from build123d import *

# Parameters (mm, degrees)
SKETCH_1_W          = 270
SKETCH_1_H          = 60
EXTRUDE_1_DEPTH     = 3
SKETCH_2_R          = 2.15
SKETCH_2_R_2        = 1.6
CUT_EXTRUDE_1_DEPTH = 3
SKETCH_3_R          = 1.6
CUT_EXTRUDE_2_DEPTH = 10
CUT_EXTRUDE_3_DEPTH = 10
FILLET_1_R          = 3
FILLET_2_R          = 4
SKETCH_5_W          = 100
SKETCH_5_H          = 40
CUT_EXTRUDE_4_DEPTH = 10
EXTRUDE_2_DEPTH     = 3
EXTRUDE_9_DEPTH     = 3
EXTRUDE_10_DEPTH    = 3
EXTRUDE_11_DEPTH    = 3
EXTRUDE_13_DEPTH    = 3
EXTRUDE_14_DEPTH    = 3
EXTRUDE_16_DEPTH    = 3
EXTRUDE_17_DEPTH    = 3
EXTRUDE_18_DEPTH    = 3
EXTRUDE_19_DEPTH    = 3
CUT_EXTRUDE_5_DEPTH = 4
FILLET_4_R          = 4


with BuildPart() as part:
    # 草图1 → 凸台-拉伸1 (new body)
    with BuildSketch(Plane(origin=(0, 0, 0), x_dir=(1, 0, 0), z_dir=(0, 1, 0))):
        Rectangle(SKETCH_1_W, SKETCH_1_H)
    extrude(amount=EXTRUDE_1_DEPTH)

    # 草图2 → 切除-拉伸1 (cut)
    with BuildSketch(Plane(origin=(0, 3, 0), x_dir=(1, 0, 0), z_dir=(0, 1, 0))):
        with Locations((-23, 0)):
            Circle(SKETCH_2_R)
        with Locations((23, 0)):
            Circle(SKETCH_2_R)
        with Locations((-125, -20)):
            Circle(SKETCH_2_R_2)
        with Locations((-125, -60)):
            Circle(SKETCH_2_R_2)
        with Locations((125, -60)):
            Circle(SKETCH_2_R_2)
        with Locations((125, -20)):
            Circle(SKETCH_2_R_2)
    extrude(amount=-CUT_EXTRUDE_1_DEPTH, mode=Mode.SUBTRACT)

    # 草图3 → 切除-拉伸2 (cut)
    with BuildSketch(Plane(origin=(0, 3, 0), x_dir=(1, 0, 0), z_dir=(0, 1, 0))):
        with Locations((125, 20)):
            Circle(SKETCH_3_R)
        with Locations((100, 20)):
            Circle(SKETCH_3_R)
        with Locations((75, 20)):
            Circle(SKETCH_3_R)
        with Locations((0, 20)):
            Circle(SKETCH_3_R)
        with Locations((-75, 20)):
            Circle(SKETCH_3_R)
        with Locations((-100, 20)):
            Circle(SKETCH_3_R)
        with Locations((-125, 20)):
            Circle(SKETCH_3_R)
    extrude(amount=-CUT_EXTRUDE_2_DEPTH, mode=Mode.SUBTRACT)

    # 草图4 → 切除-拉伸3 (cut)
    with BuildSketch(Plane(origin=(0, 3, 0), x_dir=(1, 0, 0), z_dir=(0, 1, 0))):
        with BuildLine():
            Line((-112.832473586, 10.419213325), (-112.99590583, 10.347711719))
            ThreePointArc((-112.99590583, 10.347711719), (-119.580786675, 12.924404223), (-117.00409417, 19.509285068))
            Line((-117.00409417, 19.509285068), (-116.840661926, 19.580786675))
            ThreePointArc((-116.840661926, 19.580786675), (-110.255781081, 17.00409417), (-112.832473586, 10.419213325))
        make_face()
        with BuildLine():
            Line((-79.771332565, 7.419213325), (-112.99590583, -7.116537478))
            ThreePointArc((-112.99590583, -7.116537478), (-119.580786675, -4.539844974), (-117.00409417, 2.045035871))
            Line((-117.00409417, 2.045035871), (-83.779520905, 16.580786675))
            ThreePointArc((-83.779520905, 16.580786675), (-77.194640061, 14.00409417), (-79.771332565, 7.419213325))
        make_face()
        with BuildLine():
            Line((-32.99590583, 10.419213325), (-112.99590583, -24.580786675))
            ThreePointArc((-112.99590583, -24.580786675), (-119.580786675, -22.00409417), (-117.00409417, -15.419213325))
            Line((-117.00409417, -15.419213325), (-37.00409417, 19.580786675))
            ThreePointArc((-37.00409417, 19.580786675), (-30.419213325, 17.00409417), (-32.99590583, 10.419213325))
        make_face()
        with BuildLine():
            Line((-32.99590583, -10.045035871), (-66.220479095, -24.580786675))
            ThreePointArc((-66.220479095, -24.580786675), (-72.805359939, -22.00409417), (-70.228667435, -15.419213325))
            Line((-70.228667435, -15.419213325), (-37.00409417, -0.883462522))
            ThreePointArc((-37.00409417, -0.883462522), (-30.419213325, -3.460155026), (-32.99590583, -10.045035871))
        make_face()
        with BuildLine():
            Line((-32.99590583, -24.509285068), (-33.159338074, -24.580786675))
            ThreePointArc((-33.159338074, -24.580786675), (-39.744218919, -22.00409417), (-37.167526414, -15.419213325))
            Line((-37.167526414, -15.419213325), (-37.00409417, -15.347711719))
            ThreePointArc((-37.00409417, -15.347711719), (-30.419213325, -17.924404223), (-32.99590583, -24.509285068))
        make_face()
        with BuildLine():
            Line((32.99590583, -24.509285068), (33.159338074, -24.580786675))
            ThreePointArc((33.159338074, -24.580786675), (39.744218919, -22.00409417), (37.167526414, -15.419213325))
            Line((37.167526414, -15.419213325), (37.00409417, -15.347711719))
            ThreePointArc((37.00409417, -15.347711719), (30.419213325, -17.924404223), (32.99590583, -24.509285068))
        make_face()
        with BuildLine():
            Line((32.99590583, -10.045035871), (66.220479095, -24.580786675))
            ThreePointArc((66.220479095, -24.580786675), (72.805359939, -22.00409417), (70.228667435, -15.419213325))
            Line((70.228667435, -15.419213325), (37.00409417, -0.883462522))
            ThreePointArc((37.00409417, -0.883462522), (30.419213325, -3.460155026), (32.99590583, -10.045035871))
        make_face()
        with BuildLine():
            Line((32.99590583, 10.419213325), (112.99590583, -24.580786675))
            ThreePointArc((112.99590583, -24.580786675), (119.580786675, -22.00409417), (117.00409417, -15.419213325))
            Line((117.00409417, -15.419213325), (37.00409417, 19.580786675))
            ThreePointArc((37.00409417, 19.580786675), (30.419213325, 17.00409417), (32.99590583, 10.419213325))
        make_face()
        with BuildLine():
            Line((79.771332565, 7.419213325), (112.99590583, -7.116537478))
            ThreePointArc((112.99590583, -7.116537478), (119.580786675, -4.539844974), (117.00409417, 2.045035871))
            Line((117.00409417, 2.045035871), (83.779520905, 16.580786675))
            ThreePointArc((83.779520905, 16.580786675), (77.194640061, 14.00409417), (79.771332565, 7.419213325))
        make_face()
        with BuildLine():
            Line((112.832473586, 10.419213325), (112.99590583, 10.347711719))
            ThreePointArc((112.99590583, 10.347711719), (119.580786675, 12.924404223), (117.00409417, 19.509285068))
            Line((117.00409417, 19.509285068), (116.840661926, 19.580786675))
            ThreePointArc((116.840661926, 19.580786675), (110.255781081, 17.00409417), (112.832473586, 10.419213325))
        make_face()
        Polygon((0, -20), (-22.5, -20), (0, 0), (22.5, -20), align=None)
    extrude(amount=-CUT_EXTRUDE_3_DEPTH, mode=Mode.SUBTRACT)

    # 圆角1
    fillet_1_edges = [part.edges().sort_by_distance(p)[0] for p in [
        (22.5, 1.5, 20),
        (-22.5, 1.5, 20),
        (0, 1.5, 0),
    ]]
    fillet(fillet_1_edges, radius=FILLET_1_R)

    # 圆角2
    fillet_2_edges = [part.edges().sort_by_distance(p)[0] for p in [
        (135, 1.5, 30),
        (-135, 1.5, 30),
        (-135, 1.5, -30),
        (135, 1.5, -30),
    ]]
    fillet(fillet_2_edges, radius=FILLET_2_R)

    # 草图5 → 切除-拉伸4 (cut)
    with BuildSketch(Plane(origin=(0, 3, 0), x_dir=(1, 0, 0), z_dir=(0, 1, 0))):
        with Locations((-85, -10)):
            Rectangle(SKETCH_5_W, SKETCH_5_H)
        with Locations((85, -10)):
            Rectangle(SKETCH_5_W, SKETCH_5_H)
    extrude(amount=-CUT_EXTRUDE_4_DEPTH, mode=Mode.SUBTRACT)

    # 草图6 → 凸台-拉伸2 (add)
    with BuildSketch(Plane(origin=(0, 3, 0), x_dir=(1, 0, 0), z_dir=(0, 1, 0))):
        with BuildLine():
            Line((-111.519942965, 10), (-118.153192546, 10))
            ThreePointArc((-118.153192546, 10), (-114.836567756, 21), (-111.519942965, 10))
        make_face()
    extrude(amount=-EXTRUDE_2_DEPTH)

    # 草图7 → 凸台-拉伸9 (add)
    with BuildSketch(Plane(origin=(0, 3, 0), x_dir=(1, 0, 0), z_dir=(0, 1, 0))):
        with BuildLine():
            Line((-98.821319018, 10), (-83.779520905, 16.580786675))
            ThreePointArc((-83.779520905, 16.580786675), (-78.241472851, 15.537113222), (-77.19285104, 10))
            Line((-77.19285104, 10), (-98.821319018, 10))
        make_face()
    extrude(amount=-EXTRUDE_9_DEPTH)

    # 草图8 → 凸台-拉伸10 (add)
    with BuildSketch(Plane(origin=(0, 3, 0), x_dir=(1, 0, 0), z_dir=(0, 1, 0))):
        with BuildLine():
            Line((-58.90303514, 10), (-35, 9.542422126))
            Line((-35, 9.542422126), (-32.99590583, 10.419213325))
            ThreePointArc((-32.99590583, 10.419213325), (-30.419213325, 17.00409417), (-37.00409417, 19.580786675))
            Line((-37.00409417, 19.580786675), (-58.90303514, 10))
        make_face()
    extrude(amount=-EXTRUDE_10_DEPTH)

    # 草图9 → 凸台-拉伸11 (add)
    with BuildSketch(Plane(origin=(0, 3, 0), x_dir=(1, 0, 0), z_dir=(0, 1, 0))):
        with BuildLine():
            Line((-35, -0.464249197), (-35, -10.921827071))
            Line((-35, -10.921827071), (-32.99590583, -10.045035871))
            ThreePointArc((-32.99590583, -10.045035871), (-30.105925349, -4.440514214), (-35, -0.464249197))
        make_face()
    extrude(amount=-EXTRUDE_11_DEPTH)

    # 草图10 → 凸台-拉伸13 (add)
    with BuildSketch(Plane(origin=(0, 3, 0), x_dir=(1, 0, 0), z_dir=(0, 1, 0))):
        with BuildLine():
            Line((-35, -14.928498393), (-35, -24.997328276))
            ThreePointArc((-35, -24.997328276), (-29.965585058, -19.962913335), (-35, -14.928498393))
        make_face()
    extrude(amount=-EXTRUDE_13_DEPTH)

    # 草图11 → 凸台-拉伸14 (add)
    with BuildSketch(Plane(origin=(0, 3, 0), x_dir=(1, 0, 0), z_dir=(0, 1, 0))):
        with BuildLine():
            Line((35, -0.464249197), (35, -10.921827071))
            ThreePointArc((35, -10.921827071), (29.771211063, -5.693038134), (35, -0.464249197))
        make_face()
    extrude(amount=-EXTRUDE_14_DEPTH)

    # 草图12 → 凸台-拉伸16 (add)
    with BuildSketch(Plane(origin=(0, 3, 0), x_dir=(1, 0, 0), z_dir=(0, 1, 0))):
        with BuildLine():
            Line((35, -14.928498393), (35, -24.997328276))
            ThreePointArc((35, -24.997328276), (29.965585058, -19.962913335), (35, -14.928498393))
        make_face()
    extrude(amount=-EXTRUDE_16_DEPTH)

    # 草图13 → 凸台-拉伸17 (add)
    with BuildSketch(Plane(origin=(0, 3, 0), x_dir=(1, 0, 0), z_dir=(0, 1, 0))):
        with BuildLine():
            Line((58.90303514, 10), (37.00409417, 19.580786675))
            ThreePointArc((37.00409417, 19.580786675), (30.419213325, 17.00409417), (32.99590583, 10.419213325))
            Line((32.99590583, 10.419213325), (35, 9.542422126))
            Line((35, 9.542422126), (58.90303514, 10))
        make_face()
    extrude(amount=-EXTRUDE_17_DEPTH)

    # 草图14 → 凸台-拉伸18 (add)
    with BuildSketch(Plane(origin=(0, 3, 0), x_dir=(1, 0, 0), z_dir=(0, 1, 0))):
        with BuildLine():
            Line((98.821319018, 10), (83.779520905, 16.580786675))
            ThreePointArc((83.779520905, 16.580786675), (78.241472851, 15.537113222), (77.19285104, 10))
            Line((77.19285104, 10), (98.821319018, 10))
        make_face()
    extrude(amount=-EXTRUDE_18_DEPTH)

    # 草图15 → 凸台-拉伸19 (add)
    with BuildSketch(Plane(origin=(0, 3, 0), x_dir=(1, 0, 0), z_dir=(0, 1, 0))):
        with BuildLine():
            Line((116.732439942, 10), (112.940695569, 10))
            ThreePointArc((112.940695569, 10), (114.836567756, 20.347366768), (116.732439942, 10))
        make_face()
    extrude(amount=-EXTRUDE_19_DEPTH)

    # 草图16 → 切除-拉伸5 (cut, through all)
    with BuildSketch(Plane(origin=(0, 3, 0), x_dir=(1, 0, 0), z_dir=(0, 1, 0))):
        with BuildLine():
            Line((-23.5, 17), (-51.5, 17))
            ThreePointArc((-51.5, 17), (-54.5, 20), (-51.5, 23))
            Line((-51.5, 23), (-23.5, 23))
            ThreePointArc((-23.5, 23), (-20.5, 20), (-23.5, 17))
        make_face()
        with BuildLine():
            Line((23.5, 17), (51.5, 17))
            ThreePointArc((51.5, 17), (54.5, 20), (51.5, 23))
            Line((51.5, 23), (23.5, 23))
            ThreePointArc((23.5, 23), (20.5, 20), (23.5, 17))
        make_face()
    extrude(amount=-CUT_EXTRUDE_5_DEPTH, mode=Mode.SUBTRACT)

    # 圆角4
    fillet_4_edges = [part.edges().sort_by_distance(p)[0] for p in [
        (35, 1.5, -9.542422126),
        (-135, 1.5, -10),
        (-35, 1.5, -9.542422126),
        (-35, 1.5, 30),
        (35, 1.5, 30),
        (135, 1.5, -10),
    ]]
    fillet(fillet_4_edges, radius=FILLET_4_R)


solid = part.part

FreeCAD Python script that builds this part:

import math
import FreeCAD as App
import Part
import Sketcher
from FreeCAD import Vector
Q = App.Units.Quantity


def edges_at(feature, points):
    """Names of the edges that pass closest to the given points."""
    edges = feature.Shape.Edges
    near = lambda p: min(range(len(edges)), key=lambda i: edges[i].distToShape(Part.Vertex(*p))[0])
    return sorted({f"Edge{near(p) + 1}" for p in points})


def add_polygon(sketch, points):
    """Adds a closed chain of lines whose ends are joined by coincident constraints."""
    first, n = sketch.GeometryCount, len(points)
    for a, b in zip(points, points[1:] + points[:1]):
        sketch.addGeometry(Part.LineSegment(App.Vector(*a, 0), App.Vector(*b, 0)), False)
    for i in range(n):
        sketch.addConstraint(Sketcher.Constraint("Coincident", first + i, 2, first + (i + 1) % n, 1))

doc = App.newDocument("Part")
body = doc.addObject("PartDesign::Body", "Body")

# Sketch on XZ plane
sketch1 = doc.addObject("Sketcher::SketchObject", "Sketch")
body.addObject(sketch1)
sketch1.AttachmentSupport = (doc.XZ_Plane, [""])
sketch1.MapMode = "FlatFace"
add_polygon(sketch1, [(-135, -30), (-135, 30), (135, 30), (135, -30)])  # lines 0-3
sketch1.addConstraint([
    Sketcher.Constraint("Vertical", 0),
    Sketcher.Constraint("Horizontal", 1),
    Sketcher.Constraint("Vertical", 2),
    Sketcher.Constraint("Horizontal", 3),
    Sketcher.Constraint("Symmetric", 0, 2, 2, 2, -1, 1),
    Sketcher.Constraint("DistanceX", 1, 1, 1, 2, Q("270 mm")),
    Sketcher.Constraint("DistanceY", 0, 1, 0, 2, Q("60 mm")),
])
pad1 = doc.addObject("PartDesign::Pad", "Pad")
body.addObject(pad1)
pad1.Profile = sketch1
pad1.Length = 3
pad1.Reversed = True

# Sketch on XZ plane
sketch2 = doc.addObject("Sketcher::SketchObject", "Sketch001")
body.addObject(sketch2)
sketch2.AttachmentSupport = (doc.XZ_Plane, [""])
sketch2.MapMode = "FlatFace"
sketch2.AttachmentOffset = App.Placement(Vector(0, 0, -3), App.Rotation())
sketch2.addGeometry([
    Part.Circle(Vector(-23, 0, 0), Vector(0, 0, 1), 2.15),  # 0
    Part.Circle(Vector(23, 0, 0), Vector(0, 0, 1), 2.15),  # 1
    Part.Circle(Vector(-125, 20, 0), Vector(0, 0, 1), 1.6),  # 2
    Part.Circle(Vector(-125, 60, 0), Vector(0, 0, 1), 1.6),  # 3
    Part.Circle(Vector(125, 60, 0), Vector(0, 0, 1), 1.6),  # 4
    Part.Circle(Vector(125, 20, 0), Vector(0, 0, 1), 1.6),  # 5
], False)
sketch2.addConstraint([
    Sketcher.Constraint("Equal", 0, 1),
    Sketcher.Constraint("Equal", 2, 3),
    Sketcher.Constraint("Equal", 3, 4),
    Sketcher.Constraint("Equal", 4, 5),
    Sketcher.Constraint("Symmetric", 0, 3, 1, 3, -1, 1),
    Sketcher.Constraint("Symmetric", 3, 3, 4, 3, -2),
    Sketcher.Constraint("Symmetric", 2, 3, 5, 3, -2),
    Sketcher.Constraint("PointOnObject", 0, 3, -1),
    Sketcher.Constraint("Vertical", 2, 3, 3, 3),
    Sketcher.Constraint("Diameter", 0, Q("4.3 mm")),
    Sketcher.Constraint("Diameter", 2, Q("3.2 mm")),
    Sketcher.Constraint("DistanceX", 0, 3, -1, 1, Q("23 mm")),
    Sketcher.Constraint("DistanceX", 2, 3, -1, 1, Q("125 mm")),
    Sketcher.Constraint("DistanceY", -1, 1, 2, 3, Q("20 mm")),
    Sketcher.Constraint("DistanceY", -1, 1, 3, 3, Q("60 mm")),
])
pocket1 = doc.addObject("PartDesign::Pocket", "Pocket")
body.addObject(pocket1)
pocket1.Profile = sketch2
pocket1.Length = 3
pocket1.Reversed = True

# Sketch on XZ plane
sketch3 = doc.addObject("Sketcher::SketchObject", "Sketch002")
body.addObject(sketch3)
sketch3.AttachmentSupport = (doc.XZ_Plane, [""])
sketch3.MapMode = "FlatFace"
sketch3.AttachmentOffset = App.Placement(Vector(0, 0, -3), App.Rotation())
sketch3.addGeometry([
    Part.Circle(Vector(125, -20, 0), Vector(0, 0, 1), 1.6),  # 0
    Part.Circle(Vector(100, -20, 0), Vector(0, 0, 1), 1.6),  # 1
    Part.Circle(Vector(75, -20, 0), Vector(0, 0, 1), 1.6),  # 2
    Part.Circle(Vector(0, -20, 0), Vector(0, 0, 1), 1.6),  # 3
    Part.Circle(Vector(-75, -20, 0), Vector(0, 0, 1), 1.6),  # 4
    Part.Circle(Vector(-100, -20, 0), Vector(0, 0, 1), 1.6),  # 5
    Part.Circle(Vector(-125, -20, 0), Vector(0, 0, 1), 1.6),  # 6
], False)
sketch3.addConstraint([
    Sketcher.Constraint("Equal", 0, 1),
    Sketcher.Constraint("Equal", 1, 2),
    Sketcher.Constraint("Equal", 2, 3),
    Sketcher.Constraint("Equal", 3, 4),
    Sketcher.Constraint("Equal", 4, 5),
    Sketcher.Constraint("Equal", 5, 6),
    Sketcher.Constraint("Symmetric", 2, 3, 4, 3, -2),
    Sketcher.Constraint("Symmetric", 1, 3, 5, 3, -2),
    Sketcher.Constraint("Symmetric", 0, 3, 6, 3, -2),
    Sketcher.Constraint("PointOnObject", 3, 3, -2),
    Sketcher.Constraint("Horizontal", 0, 3, 1, 3),
    Sketcher.Constraint("Horizontal", 1, 3, 2, 3),
    Sketcher.Constraint("Horizontal", 2, 3, 3, 3),
    Sketcher.Constraint("Diameter", 0, Q("3.2 mm")),
    Sketcher.Constraint("DistanceX", -1, 1, 0, 3, Q("125 mm")),
    Sketcher.Constraint("DistanceY", 0, 3, -1, 1, Q("20 mm")),
    Sketcher.Constraint("DistanceX", -1, 1, 1, 3, Q("100 mm")),
    Sketcher.Constraint("DistanceX", -1, 1, 2, 3, Q("75 mm")),
])
pocket2 = doc.addObject("PartDesign::Pocket", "Pocket001")
body.addObject(pocket2)
pocket2.Profile = sketch3
pocket2.Length = 10
pocket2.Reversed = True

# Sketch on XZ plane
sketch4 = doc.addObject("Sketcher::SketchObject", "Sketch003")
body.addObject(sketch4)
sketch4.AttachmentSupport = (doc.XZ_Plane, [""])
sketch4.MapMode = "FlatFace"
sketch4.AttachmentOffset = App.Placement(Vector(0, 0, -3), App.Rotation())
sketch4.addGeometry(Part.LineSegment(Vector(-112.995906, -10.347712, 0), Vector(-112.832474, -10.419213, 0)), False)  # 0
sketch4.addGeometry(Part.ArcOfCircle(Part.Circle(Vector(-114.836568, -15, 0), Vector(0, 0, 1), 5), math.radians(-113.629378), math.radians(66.370622)), False)  # 1
sketch4.addGeometry(Part.LineSegment(Vector(-116.840662, -19.580787, 0), Vector(-117.004094, -19.509285, 0)), False)  # 2
sketch4.addGeometry(Part.ArcOfCircle(Part.Circle(Vector(-115, -14.928498, 0), Vector(0, 0, 1), 5), math.radians(66.370622), math.radians(246.370622)), False)  # 3
sketch4.addGeometry(Part.LineSegment(Vector(-112.995906, 7.116537, 0), Vector(-79.771333, -7.419213, 0)), False)  # 4
sketch4.addGeometry(Part.ArcOfCircle(Part.Circle(Vector(-81.775427, -12, 0), Vector(0, 0, 1), 5), math.radians(-113.629378), math.radians(66.370622)), False)  # 5
sketch4.addGeometry(Part.LineSegment(Vector(-83.779521, -16.580787, 0), Vector(-117.004094, -2.045036, 0)), False)  # 6
sketch4.addGeometry(Part.ArcOfCircle(Part.Circle(Vector(-115, 2.535751, 0), Vector(0, 0, 1), 5), math.radians(66.370622), math.radians(246.370622)), False)  # 7
sketch4.addGeometry(Part.LineSegment(Vector(-112.995906, 24.580787, 0), Vector(-32.995906, -10.419213, 0)), False)  # 8
sketch4.addGeometry(Part.ArcOfCircle(Part.Circle(Vector(-35, -15, 0), Vector(0, 0, 1), 5), math.radians(-113.629378), math.radians(66.370622)), False)  # 9
sketch4.addGeometry(Part.LineSegment(Vector(-37.004094, -19.580787, 0), Vector(-117.004094, 15.419213, 0)), False)  # 10
sketch4.addGeometry(Part.ArcOfCircle(Part.Circle(Vector(-115, 20, 0), Vector(0, 0, 1), 5), math.radians(66.370622), math.radians(246.370622)), False)  # 11
sketch4.addGeometry(Part.LineSegment(Vector(-66.220479, 24.580787, 0), Vector(-32.995906, 10.045036, 0)), False)  # 12
sketch4.addGeometry(Part.ArcOfCircle(Part.Circle(Vector(-35, 5.464249, 0), Vector(0, 0, 1), 5), math.radians(-113.629378), math.radians(66.370622)), False)  # 13
sketch4.addGeometry(Part.LineSegment(Vector(-37.004094, 0.883463, 0), Vector(-70.228667, 15.419213, 0)), False)  # 14
sketch4.addGeometry(Part.ArcOfCircle(Part.Circle(Vector(-68.224573, 20, 0), Vector(0, 0, 1), 5), math.radians(66.370622), math.radians(246.370622)), False)  # 15
sketch4.addGeometry(Part.LineSegment(Vector(-33.159338, 24.580787, 0), Vector(-32.995906, 24.509285, 0)), False)  # 16
sketch4.addGeometry(Part.ArcOfCircle(Part.Circle(Vector(-35, 19.928498, 0), Vector(0, 0, 1), 5), math.radians(-113.629378), math.radians(66.370622)), False)  # 17
sketch4.addGeometry(Part.LineSegment(Vector(-37.004094, 15.347712, 0), Vector(-37.167526, 15.419213, 0)), False)  # 18
sketch4.addGeometry(Part.ArcOfCircle(Part.Circle(Vector(-35.163432, 20, 0), Vector(0, 0, 1), 5), math.radians(66.370622), math.radians(246.370622)), False)  # 19
sketch4.addGeometry(Part.LineSegment(Vector(32.995906, 24.509285, 0), Vector(33.159338, 24.580787, 0)), False)  # 20
sketch4.addGeometry(Part.ArcOfCircle(Part.Circle(Vector(35.163432, 20, 0), Vector(0, 0, 1), 5), math.radians(-66.370622), math.radians(113.629378)), False)  # 21
sketch4.addGeometry(Part.LineSegment(Vector(37.167526, 15.419213, 0), Vector(37.004094, 15.347712, 0)), False)  # 22
sketch4.addGeometry(Part.ArcOfCircle(Part.Circle(Vector(35, 19.928498, 0), Vector(0, 0, 1), 5), math.radians(113.629378), math.radians(293.629378)), False)  # 23
sketch4.addGeometry(Part.LineSegment(Vector(32.995906, 10.045036, 0), Vector(66.220479, 24.580787, 0)), False)  # 24
sketch4.addGeometry(Part.ArcOfCircle(Part.Circle(Vector(68.224573, 20, 0), Vector(0, 0, 1), 5), math.radians(-66.370622), math.radians(113.629378)), False)  # 25
sketch4.addGeometry(Part.LineSegment(Vector(70.228667, 15.419213, 0), Vector(37.004094, 0.883463, 0)), False)  # 26
sketch4.addGeometry(Part.ArcOfCircle(Part.Circle(Vector(35, 5.464249, 0), Vector(0, 0, 1), 5), math.radians(113.629378), math.radians(293.629378)), False)  # 27
sketch4.addGeometry(Part.LineSegment(Vector(32.995906, -10.419213, 0), Vector(112.995906, 24.580787, 0)), False)  # 28
sketch4.addGeometry(Part.ArcOfCircle(Part.Circle(Vector(115, 20, 0), Vector(0, 0, 1), 5), math.radians(-66.370622), math.radians(113.629378)), False)  # 29
sketch4.addGeometry(Part.LineSegment(Vector(117.004094, 15.419213, 0), Vector(37.004094, -19.580787, 0)), False)  # 30
sketch4.addGeometry(Part.ArcOfCircle(Part.Circle(Vector(35, -15, 0), Vector(0, 0, 1), 5), math.radians(113.629378), math.radians(293.629378)), False)  # 31
sketch4.addGeometry(Part.LineSegment(Vector(79.771333, -7.419213, 0), Vector(112.995906, 7.116537, 0)), False)  # 32
sketch4.addGeometry(Part.ArcOfCircle(Part.Circle(Vector(115, 2.535751, 0), Vector(0, 0, 1), 5), math.radians(-66.370622), math.radians(113.629378)), False)  # 33
sketch4.addGeometry(Part.LineSegment(Vector(117.004094, -2.045036, 0), Vector(83.779521, -16.580787, 0)), False)  # 34
sketch4.addGeometry(Part.ArcOfCircle(Part.Circle(Vector(81.775427, -12, 0), Vector(0, 0, 1), 5), math.radians(113.629378), math.radians(293.629378)), False)  # 35
sketch4.addGeometry(Part.LineSegment(Vector(112.832474, -10.419213, 0), Vector(112.995906, -10.347712, 0)), False)  # 36
sketch4.addGeometry(Part.ArcOfCircle(Part.Circle(Vector(115, -14.928498, 0), Vector(0, 0, 1), 5), math.radians(-66.370622), math.radians(113.629378)), False)  # 37
sketch4.addGeometry(Part.LineSegment(Vector(117.004094, -19.509285, 0), Vector(116.840662, -19.580787, 0)), False)  # 38
sketch4.addGeometry(Part.ArcOfCircle(Part.Circle(Vector(114.836568, -15, 0), Vector(0, 0, 1), 5), math.radians(113.629378), math.radians(293.629378)), False)  # 39
add_polygon(sketch4, [(-22.5, 20), (22.5, 20), (0, 0)])  # lines 40-42
sketch4.addConstraint([
    Sketcher.Constraint("Tangent", 0, 2, 1, 2),
    Sketcher.Constraint("Tangent", 1, 1, 2, 1),
    Sketcher.Constraint("Tangent", 2, 2, 3, 2),
    Sketcher.Constraint("Tangent", 3, 1, 0, 1),
    Sketcher.Constraint("Tangent", 4, 2, 5, 2),
    Sketcher.Constraint("Tangent", 5, 1, 6, 1),
    Sketcher.Constraint("Tangent", 6, 2, 7, 2),
    Sketcher.Constraint("Tangent", 7, 1, 4, 1),
    Sketcher.Constraint("Tangent", 8, 2, 9, 2),
    Sketcher.Constraint("Tangent", 9, 1, 10, 1),
    Sketcher.Constraint("Tangent", 10, 2, 11, 2),
    Sketcher.Constraint("Tangent", 11, 1, 8, 1),
    Sketcher.Constraint("Tangent", 12, 2, 13, 2),
    Sketcher.Constraint("Tangent", 13, 1, 14, 1),
    Sketcher.Constraint("Tangent", 14, 2, 15, 2),
    Sketcher.Constraint("Tangent", 15, 1, 12, 1),
    Sketcher.Constraint("Tangent", 16, 2, 17, 2),
    Sketcher.Constraint("Tangent", 17, 1, 18, 1),
    Sketcher.Constraint("Tangent", 18, 2, 19, 2),
    Sketcher.Constraint("Tangent", 19, 1, 16, 1),
    Sketcher.Constraint("Tangent", 20, 2, 21, 2),
    Sketcher.Constraint("Tangent", 21, 1, 22, 1),
    Sketcher.Constraint("Tangent", 22, 2, 23, 2),
    Sketcher.Constraint("Tangent", 23, 1, 20, 1),
    Sketcher.Constraint("Tangent", 24, 2, 25, 2),
    Sketcher.Constraint("Tangent", 25, 1, 26, 1),
    Sketcher.Constraint("Tangent", 26, 2, 27, 2),
    Sketcher.Constraint("Tangent", 27, 1, 24, 1),
    Sketcher.Constraint("Tangent", 28, 2, 29, 2),
    Sketcher.Constraint("Tangent", 29, 1, 30, 1),
    Sketcher.Constraint("Tangent", 30, 2, 31, 2),
    Sketcher.Constraint("Tangent", 31, 1, 28, 1),
    Sketcher.Constraint("Tangent", 32, 2, 33, 2),
    Sketcher.Constraint("Tangent", 33, 1, 34, 1),
    Sketcher.Constraint("Tangent", 34, 2, 35, 2),
    Sketcher.Constraint("Tangent", 35, 1, 32, 1),
    Sketcher.Constraint("Tangent", 36, 2, 37, 2),
    Sketcher.Constraint("Tangent", 37, 1, 38, 1),
    Sketcher.Constraint("Tangent", 38, 2, 39, 2),
    Sketcher.Constraint("Tangent", 39, 1, 36, 1),
    Sketcher.Constraint("Horizontal", 40),
    Sketcher.Constraint("Coincident", 41, 2, -1, 1),
    Sketcher.Constraint("Equal", 1, 3),
    Sketcher.Constraint("Equal", 3, 5),
    Sketcher.Constraint("Equal", 5, 7),
    Sketcher.Constraint("Equal", 7, 9),
    Sketcher.Constraint("Equal", 9, 11),
    Sketcher.Constraint("Equal", 11, 13),
    Sketcher.Constraint("Equal", 13, 15),
    Sketcher.Constraint("Equal", 15, 17),
    Sketcher.Constraint("Equal", 17, 19),
    Sketcher.Constraint("Equal", 19, 21),
    Sketcher.Constraint("Equal", 21, 23),
    Sketcher.Constraint("Equal", 23, 25),
    Sketcher.Constraint("Equal", 25, 27),
    Sketcher.Constraint("Equal", 27, 29),
    Sketcher.Constraint("Equal", 29, 31),
    Sketcher.Constraint("Equal", 31, 33),
    Sketcher.Constraint("Equal", 33, 35),
    Sketcher.Constraint("Equal", 35, 37),
    Sketcher.Constraint("Equal", 37, 39),
    Sketcher.Constraint("Symmetric", 19, 3, 21, 3, -2),
    Sketcher.Constraint("Symmetric", 17, 3, 23, 3, -2),
    Sketcher.Constraint("Symmetric", 15, 3, 25, 3, -2),
    Sketcher.Constraint("Symmetric", 13, 3, 27, 3, -2),
    Sketcher.Constraint("Symmetric", 11, 3, 29, 3, -2),
    Sketcher.Constraint("Symmetric", 9, 3, 31, 3, -2),
    Sketcher.Constraint("Symmetric", 7, 3, 33, 3, -2),
    Sketcher.Constraint("Symmetric", 5, 3, 35, 3, -2),
    Sketcher.Constraint("Symmetric", 3, 3, 37, 3, -2),
    Sketcher.Constraint("Symmetric", 1, 3, 39, 3, -2),
    Sketcher.Constraint("Parallel", 2, 4),
    Sketcher.Constraint("Parallel", 6, 8),
    Sketcher.Constraint("Parallel", 10, 12),
    Sketcher.Constraint("Parallel", 14, 16),
    Sketcher.Constraint("Horizontal", 1, 3, 9, 3),
    Sketcher.Constraint("Horizontal", 11, 3, 15, 3),
    Sketcher.Constraint("Horizontal", 15, 3, 19, 3),
    Sketcher.Constraint("Horizontal", 29, 3, 40, 2),
    Sketcher.Constraint("Vertical", 3, 3, 7, 3),
    Sketcher.Constraint("Vertical", 7, 3, 11, 3),
    Sketcher.Constraint("Vertical", 9, 3, 13, 3),
    Sketcher.Constraint("Vertical", 13, 3, 17, 3),
    Sketcher.Constraint("Equal", 6, 12),
    Sketcher.Constraint("Equal", 2, 16),
    Sketcher.Constraint("Equal", 41, 42),
    Sketcher.Constraint("Radius", 1, Q("5 mm")),
    Sketcher.Constraint("DistanceX", 40, 1, 40, 2, Q("45 mm")),
    Sketcher.Constraint("DistanceY", 1, 3, -1, 1, Q("15 mm")),
    Sketcher.Constraint("DistanceX", 3, 3, -1, 1, Q("115 mm")),
    Sketcher.Constraint("DistanceY", 5, 3, -1, 1, Q("12 mm")),
    Sketcher.Constraint("DistanceX", 9, 3, -1, 1, Q("35 mm")),
    Sketcher.Constraint("DistanceY", -1, 1, 11, 3, Q("20 mm")),
    Sketcher.Constraint("DistanceY", 3, 3, -1, 1, Q("14.928498 mm")),
    Sketcher.Constraint("Distance", 4, Q("36.265139 mm")),
])
pocket3 = doc.addObject("PartDesign::Pocket", "Pocket002")
body.addObject(pocket3)
pocket3.Profile = sketch4
pocket3.Length = 10
pocket3.Reversed = True
doc.recompute()

fillet = doc.addObject("PartDesign::Fillet", "Fillet")
body.addObject(fillet)
fillet.Base = (pocket3, edges_at(pocket3, [(22.5, 1.5, 20), (-22.5, 1.5, 20), (0, 1.5, 0)]))
fillet.Radius = 3
doc.recompute()

fillet2 = doc.addObject("PartDesign::Fillet", "Fillet001")
body.addObject(fillet2)
fillet2.Base = (fillet, edges_at(fillet, [
    (135, 1.5, 30),
    (-135, 1.5, 30),
    (-135, 1.5, -30),
    (135, 1.5, -30),
]))
fillet2.Radius = 4

# Sketch on XZ plane
sketch5 = doc.addObject("Sketcher::SketchObject", "Sketch004")
body.addObject(sketch5)
sketch5.AttachmentSupport = (doc.XZ_Plane, [""])
sketch5.MapMode = "FlatFace"
sketch5.AttachmentOffset = App.Placement(Vector(0, 0, -3), App.Rotation())
add_polygon(sketch5, [(-135, -10), (-135, 30), (-35, 30), (-35, -10)])  # lines 0-3
add_polygon(sketch5, [(35, -10), (35, 30), (135, 30), (135, -10)])  # lines 4-7
sketch5.addConstraint([
    Sketcher.Constraint("Vertical", 0),
    Sketcher.Constraint("Horizontal", 1),
    Sketcher.Constraint("Vertical", 2),
    Sketcher.Constraint("Horizontal", 3),
    Sketcher.Constraint("Vertical", 4),
    Sketcher.Constraint("Horizontal", 5),
    Sketcher.Constraint("Vertical", 6),
    Sketcher.Constraint("Horizontal", 7),
    Sketcher.Constraint("Symmetric", 1, 2, 4, 2, -2),
    Sketcher.Constraint("Symmetric", 3, 2, 6, 2, -2),
    Sketcher.Constraint("DistanceX", 1, 1, 1, 2, Q("100 mm")),
    Sketcher.Constraint("DistanceY", 0, 1, 0, 2, Q("40 mm")),
    Sketcher.Constraint("DistanceX", 0, 2, -1, 1, Q("135 mm")),
    Sketcher.Constraint("DistanceY", -1, 1, 0, 2, Q("30 mm")),
])
pocket4 = doc.addObject("PartDesign::Pocket", "Pocket003")
body.addObject(pocket4)
pocket4.Profile = sketch5
pocket4.Length = 10
pocket4.Reversed = True

# Sketch on XZ plane
sketch6 = doc.addObject("Sketcher::SketchObject", "Sketch005")
body.addObject(sketch6)
sketch6.AttachmentSupport = (doc.XZ_Plane, [""])
sketch6.MapMode = "FlatFace"
sketch6.AttachmentOffset = App.Placement(Vector(0, 0, -3), App.Rotation())
sketch6.addGeometry([
    Part.LineSegment(Vector(-118.153193, -10, 0), Vector(-111.519943, -10, 0)),
    Part.ArcOfCircle(Part.Circle(Vector(-114.836568, -15, 0), Vector(0, 0, 1), 6), math.radians(123.55731), math.radians(416.44269)),
], False)
sketch6.addConstraint([
    Sketcher.Constraint("Coincident", 0, 1, 1, 1),
    Sketcher.Constraint("Coincident", 1, 2, 0, 2),
    Sketcher.Constraint("Horizontal", 0),
    Sketcher.Constraint("Radius", 1, Q("6 mm")),
    Sketcher.Constraint("DistanceY", 1, 3, -1, 1, Q("15 mm")),
    Sketcher.Constraint("DistanceY", 0, 1, -1, 1, Q("10 mm")),
    Sketcher.Constraint("DistanceX", 1, 3, -1, 1, Q("114.836568 mm")),
])
pad2 = doc.addObject("PartDesign::Pad", "Pad001")
body.addObject(pad2)
pad2.Profile = sketch6
pad2.Length = 3

# Sketch on XZ plane
sketch7 = doc.addObject("Sketcher::SketchObject", "Sketch006")
body.addObject(sketch7)
sketch7.AttachmentSupport = (doc.XZ_Plane, [""])
sketch7.MapMode = "FlatFace"
sketch7.AttachmentOffset = App.Placement(Vector(0, 0, -3), App.Rotation())
sketch7.addGeometry([
    Part.LineSegment(Vector(-83.779521, -16.580787, 0), Vector(-98.821319, -10, 0)),
    Part.LineSegment(Vector(-98.821319, -10, 0), Vector(-77.192851, -10, 0)),
    Part.ArcOfCircle(Part.Circle(Vector(-81.775427, -12, 0), Vector(0, 0, 1), 5), math.radians(-113.629378), math.radians(23.578178)),
], False)
sketch7.addConstraint([
    Sketcher.Constraint("Coincident", 0, 2, 1, 1),
    Sketcher.Constraint("Coincident", 1, 2, 2, 2),
    Sketcher.Constraint("Tangent", 2, 1, 0, 1),
    Sketcher.Constraint("Horizontal", 1),
    Sketcher.Constraint("Radius", 2, Q("5 mm")),
    Sketcher.Constraint("DistanceY", 2, 3, -1, 1, Q("12 mm")),
    Sketcher.Constraint("DistanceY", 0, 2, -1, 1, Q("10 mm")),
    Sketcher.Constraint("DistanceX", 0, 2, 2, 1, Q("15.041798 mm")),
    Sketcher.Constraint("DistanceX", 0, 2, -1, 1, Q("98.821319 mm")),
])
pad3 = doc.addObject("PartDesign::Pad", "Pad002")
body.addObject(pad3)
pad3.Profile = sketch7
pad3.Length = 3

# Sketch on XZ plane
sketch8 = doc.addObject("Sketcher::SketchObject", "Sketch007")
body.addObject(sketch8)
sketch8.AttachmentSupport = (doc.XZ_Plane, [""])
sketch8.MapMode = "FlatFace"
sketch8.AttachmentOffset = App.Placement(Vector(0, 0, -3), App.Rotation())
sketch8.addGeometry([
    Part.LineSegment(Vector(-58.903035, -10, 0), Vector(-35, -9.542422, 0)),
    Part.LineSegment(Vector(-35, -9.542422, 0), Vector(-32.995906, -10.419213, 0)),
    Part.ArcOfCircle(Part.Circle(Vector(-35, -15, 0), Vector(0, 0, 1), 5), math.radians(-113.629378), math.radians(66.370622)),
    Part.LineSegment(Vector(-37.004094, -19.580787, 0), Vector(-58.903035, -10, 0)),
], False)
sketch8.addConstraint([
    Sketcher.Constraint("Coincident", 0, 2, 1, 1),
    Sketcher.Constraint("Tangent", 1, 2, 2, 2),
    Sketcher.Constraint("Tangent", 2, 1, 3, 1),
    Sketcher.Constraint("Coincident", 3, 2, 0, 1),
    Sketcher.Constraint("Parallel", 1, 3),
    Sketcher.Constraint("Vertical", 2, 3, 0, 2),
    Sketcher.Constraint("Radius", 2, Q("5 mm")),
    Sketcher.Constraint("DistanceX", 2, 3, -1, 1, Q("35 mm")),
    Sketcher.Constraint("DistanceY", 2, 3, -1, 1, Q("15 mm")),
    Sketcher.Constraint("DistanceY", 3, 2, -1, 1, Q("10 mm")),
    Sketcher.Constraint("Distance", 1, Q("2.1875 mm")),
])
pad4 = doc.addObject("PartDesign::Pad", "Pad003")
body.addObject(pad4)
pad4.Profile = sketch8
pad4.Length = 3

# Sketch on XZ plane
sketch9 = doc.addObject("Sketcher::SketchObject", "Sketch008")
body.addObject(sketch9)
sketch9.AttachmentSupport = (doc.XZ_Plane, [""])
sketch9.MapMode = "FlatFace"
sketch9.AttachmentOffset = App.Placement(Vector(0, 0, -3), App.Rotation())
sketch9.addGeometry([
    Part.LineSegment(Vector(-35, 0.464249, 0), Vector(-35, 10.921827, 0)),
    Part.LineSegment(Vector(-35, 10.921827, 0), Vector(-32.995906, 10.045036, 0)),
    Part.ArcOfCircle(Part.Circle(Vector(-35, 5.464249, 0), Vector(0, 0, 1), 5), math.radians(-90), math.radians(66.370622)),
], False)
sketch9.addConstraint([
    Sketcher.Constraint("Coincident", 0, 2, 1, 1),
    Sketcher.Constraint("Tangent", 1, 2, 2, 2),
    Sketcher.Constraint("Coincident", 2, 1, 0, 1),
    Sketcher.Constraint("Vertical", 0),
    Sketcher.Constraint("Vertical", 2, 3, 0, 2),
    Sketcher.Constraint("Radius", 2, Q("5 mm")),
    Sketcher.Constraint("DistanceX", 2, 3, -1, 1, Q("35 mm")),
    Sketcher.Constraint("Distance", 1, Q("2.1875 mm")),
    Sketcher.Constraint("DistanceY", -1, 1, 2, 3, Q("5.464249 mm")),
])
pad5 = doc.addObject("PartDesign::Pad", "Pad004")
body.addObject(pad5)
pad5.Profile = sketch9
pad5.Length = 3

# Sketch on XZ plane
sketch10 = doc.addObject("Sketcher::SketchObject", "Sketch009")
body.addObject(sketch10)
sketch10.AttachmentSupport = (doc.XZ_Plane, [""])
sketch10.MapMode = "FlatFace"
sketch10.AttachmentOffset = App.Placement(Vector(0, 0, -3), App.Rotation())
sketch10.addGeometry([
    Part.LineSegment(Vector(-35, 14.928498, 0), Vector(-35, 24.997328, 0)),
    Part.ArcOfCircle(Part.Circle(Vector(-35, 19.962913, 0), Vector(0, 0, 1), 5.034415), math.radians(-90), math.radians(90)),
], False)
sketch10.addConstraint([
    Sketcher.Constraint("Coincident", 0, 1, 1, 1),
    Sketcher.Constraint("Coincident", 1, 2, 0, 2),
    Sketcher.Constraint("Vertical", 0),
    Sketcher.Constraint("Vertical", 1, 3, 0, 1),
    Sketcher.Constraint("DistanceX", 1, 3, -1, 1, Q("35 mm")),
    Sketcher.Constraint("Radius", 1, Q("5.034415 mm")),
    Sketcher.Constraint("DistanceY", -1, 1, 0, 1, Q("14.928498 mm")),
])
pad6 = doc.addObject("PartDesign::Pad", "Pad005")
body.addObject(pad6)
pad6.Profile = sketch10
pad6.Length = 3

# Sketch on XZ plane
sketch11 = doc.addObject("Sketcher::SketchObject", "Sketch010")
body.addObject(sketch11)
sketch11.AttachmentSupport = (doc.XZ_Plane, [""])
sketch11.MapMode = "FlatFace"
sketch11.AttachmentOffset = App.Placement(Vector(0, 0, -3), App.Rotation())
sketch11.addGeometry([
    Part.LineSegment(Vector(35, 10.921827, 0), Vector(35, 0.464249, 0)),
    Part.ArcOfCircle(Part.Circle(Vector(35, 5.693038, 0), Vector(0, 0, 1), 5.228789), math.radians(90), math.radians(270)),
], False)
sketch11.addConstraint([
    Sketcher.Constraint("Coincident", 0, 1, 1, 1),
    Sketcher.Constraint("Coincident", 1, 2, 0, 2),
    Sketcher.Constraint("Vertical", 0),
    Sketcher.Constraint("Vertical", 1, 3, 0, 1),
    Sketcher.Constraint("DistanceX", -1, 1, 1, 3, Q("35 mm")),
    Sketcher.Constraint("Radius", 1, Q("5.228789 mm")),
    Sketcher.Constraint("DistanceY", -1, 1, 1, 3, Q("5.693038 mm")),
])
pad7 = doc.addObject("PartDesign::Pad", "Pad006")
body.addObject(pad7)
pad7.Profile = sketch11
pad7.Length = 3

# Sketch on XZ plane
sketch12 = doc.addObject("Sketcher::SketchObject", "Sketch011")
body.addObject(sketch12)
sketch12.AttachmentSupport = (doc.XZ_Plane, [""])
sketch12.MapMode = "FlatFace"
sketch12.AttachmentOffset = App.Placement(Vector(0, 0, -3), App.Rotation())
sketch12.addGeometry([
    Part.LineSegment(Vector(35, 24.997328, 0), Vector(35, 14.928498, 0)),
    Part.ArcOfCircle(Part.Circle(Vector(35, 19.962913, 0), Vector(0, 0, 1), 5.034415), math.radians(90), math.radians(270)),
], False)
sketch12.addConstraint([
    Sketcher.Constraint("Coincident", 0, 1, 1, 1),
    Sketcher.Constraint("Coincident", 1, 2, 0, 2),
    Sketcher.Constraint("Vertical", 0),
    Sketcher.Constraint("Vertical", 1, 3, 0, 1),
    Sketcher.Constraint("DistanceX", -1, 1, 1, 3, Q("35 mm")),
    Sketcher.Constraint("Radius", 1, Q("5.034415 mm")),
    Sketcher.Constraint("DistanceY", -1, 1, 1, 2, Q("14.928498 mm")),
])
pad8 = doc.addObject("PartDesign::Pad", "Pad007")
body.addObject(pad8)
pad8.Profile = sketch12
pad8.Length = 3

# Sketch on XZ plane
sketch13 = doc.addObject("Sketcher::SketchObject", "Sketch012")
body.addObject(sketch13)
sketch13.AttachmentSupport = (doc.XZ_Plane, [""])
sketch13.MapMode = "FlatFace"
sketch13.AttachmentOffset = App.Placement(Vector(0, 0, -3), App.Rotation())
sketch13.addGeometry([
    Part.LineSegment(Vector(58.903035, -10, 0), Vector(37.004094, -19.580787, 0)),
    Part.ArcOfCircle(Part.Circle(Vector(35, -15, 0), Vector(0, 0, 1), 5), math.radians(113.629378), math.radians(293.629378)),
    Part.LineSegment(Vector(32.995906, -10.419213, 0), Vector(35, -9.542422, 0)),
    Part.LineSegment(Vector(35, -9.542422, 0), Vector(58.903035, -10, 0)),
], False)
sketch13.addConstraint([
    Sketcher.Constraint("Tangent", 0, 2, 1, 2),
    Sketcher.Constraint("Tangent", 1, 1, 2, 1),
    Sketcher.Constraint("Coincident", 2, 2, 3, 1),
    Sketcher.Constraint("Coincident", 3, 2, 0, 1),
    Sketcher.Constraint("Parallel", 0, 2),
    Sketcher.Constraint("Vertical", 1, 3, 2, 2),
    Sketcher.Constraint("Radius", 1, Q("5 mm")),
    Sketcher.Constraint("DistanceX", -1, 1, 1, 3, Q("35 mm")),
    Sketcher.Constraint("DistanceY", 1, 3, -1, 1, Q("15 mm")),
    Sketcher.Constraint("DistanceY", 3, 2, -1, 1, Q("10 mm")),
    Sketcher.Constraint("Distance", 2, Q("2.1875 mm")),
])
pad9 = doc.addObject("PartDesign::Pad", "Pad008")
body.addObject(pad9)
pad9.Profile = sketch13
pad9.Length = 3

# Sketch on XZ plane
sketch14 = doc.addObject("Sketcher::SketchObject", "Sketch013")
body.addObject(sketch14)
sketch14.AttachmentSupport = (doc.XZ_Plane, [""])
sketch14.MapMode = "FlatFace"
sketch14.AttachmentOffset = App.Placement(Vector(0, 0, -3), App.Rotation())
sketch14.addGeometry([
    Part.LineSegment(Vector(98.821319, -10, 0), Vector(83.779521, -16.580787, 0)),
    Part.ArcOfCircle(Part.Circle(Vector(81.775427, -12, 0), Vector(0, 0, 1), 5), math.radians(156.421822), math.radians(293.629378)),
    Part.LineSegment(Vector(77.192851, -10, 0), Vector(98.821319, -10, 0)),
], False)
sketch14.addConstraint([
    Sketcher.Constraint("Tangent", 0, 2, 1, 2),
    Sketcher.Constraint("Coincident", 1, 1, 2, 1),
    Sketcher.Constraint("Coincident", 2, 2, 0, 1),
    Sketcher.Constraint("Horizontal", 2),
    Sketcher.Constraint("Radius", 1, Q("5 mm")),
    Sketcher.Constraint("DistanceY", 1, 3, -1, 1, Q("12 mm")),
    Sketcher.Constraint("DistanceY", 1, 1, -1, 1, Q("10 mm")),
    Sketcher.Constraint("DistanceX", 0, 2, 2, 2, Q("15.041798 mm")),
    Sketcher.Constraint("DistanceX", -1, 1, 0, 2, Q("83.779521 mm")),
])
pad10 = doc.addObject("PartDesign::Pad", "Pad009")
body.addObject(pad10)
pad10.Profile = sketch14
pad10.Length = 3

# Sketch on XZ plane
sketch15 = doc.addObject("Sketcher::SketchObject", "Sketch014")
body.addObject(sketch15)
sketch15.AttachmentSupport = (doc.XZ_Plane, [""])
sketch15.MapMode = "FlatFace"
sketch15.AttachmentOffset = App.Placement(Vector(0, 0, -3), App.Rotation())
sketch15.addGeometry([
    Part.LineSegment(Vector(112.940696, -10, 0), Vector(116.73244, -10, 0)),
    Part.ArcOfCircle(Part.Circle(Vector(114.836568, -15, 0), Vector(0, 0, 1), 5.347367), math.radians(110.765447), math.radians(429.234553)),
], False)
sketch15.addConstraint([
    Sketcher.Constraint("Coincident", 0, 1, 1, 1),
    Sketcher.Constraint("Coincident", 1, 2, 0, 2),
    Sketcher.Constraint("Horizontal", 0),
    Sketcher.Constraint("DistanceY", 1, 3, -1, 1, Q("15 mm")),
    Sketcher.Constraint("DistanceY", 0, 1, -1, 1, Q("10 mm")),
    Sketcher.Constraint("Radius", 1, Q("5.347367 mm")),
    Sketcher.Constraint("DistanceX", -1, 1, 1, 2, Q("116.73244 mm")),
])
pad11 = doc.addObject("PartDesign::Pad", "Pad010")
body.addObject(pad11)
pad11.Profile = sketch15
pad11.Length = 3

# Sketch on XZ plane
sketch16 = doc.addObject("Sketcher::SketchObject", "Sketch015")
body.addObject(sketch16)
sketch16.AttachmentSupport = (doc.XZ_Plane, [""])
sketch16.MapMode = "FlatFace"
sketch16.AttachmentOffset = App.Placement(Vector(0, 0, -3), App.Rotation())
sketch16.addGeometry([
    Part.LineSegment(Vector(-51.5, -17, 0), Vector(-23.5, -17, 0)),  # 0
    Part.ArcOfCircle(Part.Circle(Vector(-23.5, -20, 0), Vector(0, 0, 1), 3), math.radians(-90), math.radians(90)),  # 1
    Part.LineSegment(Vector(-23.5, -23, 0), Vector(-51.5, -23, 0)),  # 2
    Part.ArcOfCircle(Part.Circle(Vector(-51.5, -20, 0), Vector(0, 0, 1), 3), math.radians(90), math.radians(270)),  # 3
    Part.LineSegment(Vector(23.5, -17, 0), Vector(51.5, -17, 0)),  # 4
    Part.ArcOfCircle(Part.Circle(Vector(51.5, -20, 0), Vector(0, 0, 1), 3), math.radians(-90), math.radians(90)),  # 5
    Part.LineSegment(Vector(51.5, -23, 0), Vector(23.5, -23, 0)),  # 6
    Part.ArcOfCircle(Part.Circle(Vector(23.5, -20, 0), Vector(0, 0, 1), 3), math.radians(90), math.radians(270)),  # 7
], False)
sketch16.addConstraint([
    Sketcher.Constraint("Tangent", 0, 2, 1, 2),
    Sketcher.Constraint("Tangent", 1, 1, 2, 1),
    Sketcher.Constraint("Tangent", 2, 2, 3, 2),
    Sketcher.Constraint("Tangent", 3, 1, 0, 1),
    Sketcher.Constraint("Tangent", 4, 2, 5, 2),
    Sketcher.Constraint("Tangent", 5, 1, 6, 1),
    Sketcher.Constraint("Tangent", 6, 2, 7, 2),
    Sketcher.Constraint("Tangent", 7, 1, 4, 1),
    Sketcher.Constraint("Horizontal", 0),
    Sketcher.Constraint("Horizontal", 2),
    Sketcher.Constraint("Horizontal", 4),
    Sketcher.Constraint("Horizontal", 6),
    Sketcher.Constraint("Equal", 3, 5),
    Sketcher.Constraint("Symmetric", 3, 3, 5, 3, -2),
    Sketcher.Constraint("Equal", 2, 4),
    Sketcher.Constraint("Radius", 1, Q("3 mm")),
    Sketcher.Constraint("DistanceX", 0, 1, 0, 2, Q("28 mm")),
    Sketcher.Constraint("DistanceY", 1, 3, -1, 1, Q("20 mm")),
    Sketcher.Constraint("DistanceX", 1, 3, 5, 3, Q("75 mm")),
])
pocket5 = doc.addObject("PartDesign::Pocket", "Pocket004")
body.addObject(pocket5)
pocket5.Profile = sketch16
pocket5.Type = "ThroughAll"
pocket5.Reversed = True
doc.recompute()

fillet3 = doc.addObject("PartDesign::Fillet", "Fillet002")
body.addObject(fillet3)
fillet3.Base = (pocket5, edges_at(pocket5, [
    (35, 1.5, -9.542),
    (-135, 1.5, -10),
    (-35, 1.5, -9.542),
    (-35, 1.5, 30),
    (35, 1.5, 30),
    (135, 1.5, -10),
]))
fillet3.Radius = 4

doc.recompute()
